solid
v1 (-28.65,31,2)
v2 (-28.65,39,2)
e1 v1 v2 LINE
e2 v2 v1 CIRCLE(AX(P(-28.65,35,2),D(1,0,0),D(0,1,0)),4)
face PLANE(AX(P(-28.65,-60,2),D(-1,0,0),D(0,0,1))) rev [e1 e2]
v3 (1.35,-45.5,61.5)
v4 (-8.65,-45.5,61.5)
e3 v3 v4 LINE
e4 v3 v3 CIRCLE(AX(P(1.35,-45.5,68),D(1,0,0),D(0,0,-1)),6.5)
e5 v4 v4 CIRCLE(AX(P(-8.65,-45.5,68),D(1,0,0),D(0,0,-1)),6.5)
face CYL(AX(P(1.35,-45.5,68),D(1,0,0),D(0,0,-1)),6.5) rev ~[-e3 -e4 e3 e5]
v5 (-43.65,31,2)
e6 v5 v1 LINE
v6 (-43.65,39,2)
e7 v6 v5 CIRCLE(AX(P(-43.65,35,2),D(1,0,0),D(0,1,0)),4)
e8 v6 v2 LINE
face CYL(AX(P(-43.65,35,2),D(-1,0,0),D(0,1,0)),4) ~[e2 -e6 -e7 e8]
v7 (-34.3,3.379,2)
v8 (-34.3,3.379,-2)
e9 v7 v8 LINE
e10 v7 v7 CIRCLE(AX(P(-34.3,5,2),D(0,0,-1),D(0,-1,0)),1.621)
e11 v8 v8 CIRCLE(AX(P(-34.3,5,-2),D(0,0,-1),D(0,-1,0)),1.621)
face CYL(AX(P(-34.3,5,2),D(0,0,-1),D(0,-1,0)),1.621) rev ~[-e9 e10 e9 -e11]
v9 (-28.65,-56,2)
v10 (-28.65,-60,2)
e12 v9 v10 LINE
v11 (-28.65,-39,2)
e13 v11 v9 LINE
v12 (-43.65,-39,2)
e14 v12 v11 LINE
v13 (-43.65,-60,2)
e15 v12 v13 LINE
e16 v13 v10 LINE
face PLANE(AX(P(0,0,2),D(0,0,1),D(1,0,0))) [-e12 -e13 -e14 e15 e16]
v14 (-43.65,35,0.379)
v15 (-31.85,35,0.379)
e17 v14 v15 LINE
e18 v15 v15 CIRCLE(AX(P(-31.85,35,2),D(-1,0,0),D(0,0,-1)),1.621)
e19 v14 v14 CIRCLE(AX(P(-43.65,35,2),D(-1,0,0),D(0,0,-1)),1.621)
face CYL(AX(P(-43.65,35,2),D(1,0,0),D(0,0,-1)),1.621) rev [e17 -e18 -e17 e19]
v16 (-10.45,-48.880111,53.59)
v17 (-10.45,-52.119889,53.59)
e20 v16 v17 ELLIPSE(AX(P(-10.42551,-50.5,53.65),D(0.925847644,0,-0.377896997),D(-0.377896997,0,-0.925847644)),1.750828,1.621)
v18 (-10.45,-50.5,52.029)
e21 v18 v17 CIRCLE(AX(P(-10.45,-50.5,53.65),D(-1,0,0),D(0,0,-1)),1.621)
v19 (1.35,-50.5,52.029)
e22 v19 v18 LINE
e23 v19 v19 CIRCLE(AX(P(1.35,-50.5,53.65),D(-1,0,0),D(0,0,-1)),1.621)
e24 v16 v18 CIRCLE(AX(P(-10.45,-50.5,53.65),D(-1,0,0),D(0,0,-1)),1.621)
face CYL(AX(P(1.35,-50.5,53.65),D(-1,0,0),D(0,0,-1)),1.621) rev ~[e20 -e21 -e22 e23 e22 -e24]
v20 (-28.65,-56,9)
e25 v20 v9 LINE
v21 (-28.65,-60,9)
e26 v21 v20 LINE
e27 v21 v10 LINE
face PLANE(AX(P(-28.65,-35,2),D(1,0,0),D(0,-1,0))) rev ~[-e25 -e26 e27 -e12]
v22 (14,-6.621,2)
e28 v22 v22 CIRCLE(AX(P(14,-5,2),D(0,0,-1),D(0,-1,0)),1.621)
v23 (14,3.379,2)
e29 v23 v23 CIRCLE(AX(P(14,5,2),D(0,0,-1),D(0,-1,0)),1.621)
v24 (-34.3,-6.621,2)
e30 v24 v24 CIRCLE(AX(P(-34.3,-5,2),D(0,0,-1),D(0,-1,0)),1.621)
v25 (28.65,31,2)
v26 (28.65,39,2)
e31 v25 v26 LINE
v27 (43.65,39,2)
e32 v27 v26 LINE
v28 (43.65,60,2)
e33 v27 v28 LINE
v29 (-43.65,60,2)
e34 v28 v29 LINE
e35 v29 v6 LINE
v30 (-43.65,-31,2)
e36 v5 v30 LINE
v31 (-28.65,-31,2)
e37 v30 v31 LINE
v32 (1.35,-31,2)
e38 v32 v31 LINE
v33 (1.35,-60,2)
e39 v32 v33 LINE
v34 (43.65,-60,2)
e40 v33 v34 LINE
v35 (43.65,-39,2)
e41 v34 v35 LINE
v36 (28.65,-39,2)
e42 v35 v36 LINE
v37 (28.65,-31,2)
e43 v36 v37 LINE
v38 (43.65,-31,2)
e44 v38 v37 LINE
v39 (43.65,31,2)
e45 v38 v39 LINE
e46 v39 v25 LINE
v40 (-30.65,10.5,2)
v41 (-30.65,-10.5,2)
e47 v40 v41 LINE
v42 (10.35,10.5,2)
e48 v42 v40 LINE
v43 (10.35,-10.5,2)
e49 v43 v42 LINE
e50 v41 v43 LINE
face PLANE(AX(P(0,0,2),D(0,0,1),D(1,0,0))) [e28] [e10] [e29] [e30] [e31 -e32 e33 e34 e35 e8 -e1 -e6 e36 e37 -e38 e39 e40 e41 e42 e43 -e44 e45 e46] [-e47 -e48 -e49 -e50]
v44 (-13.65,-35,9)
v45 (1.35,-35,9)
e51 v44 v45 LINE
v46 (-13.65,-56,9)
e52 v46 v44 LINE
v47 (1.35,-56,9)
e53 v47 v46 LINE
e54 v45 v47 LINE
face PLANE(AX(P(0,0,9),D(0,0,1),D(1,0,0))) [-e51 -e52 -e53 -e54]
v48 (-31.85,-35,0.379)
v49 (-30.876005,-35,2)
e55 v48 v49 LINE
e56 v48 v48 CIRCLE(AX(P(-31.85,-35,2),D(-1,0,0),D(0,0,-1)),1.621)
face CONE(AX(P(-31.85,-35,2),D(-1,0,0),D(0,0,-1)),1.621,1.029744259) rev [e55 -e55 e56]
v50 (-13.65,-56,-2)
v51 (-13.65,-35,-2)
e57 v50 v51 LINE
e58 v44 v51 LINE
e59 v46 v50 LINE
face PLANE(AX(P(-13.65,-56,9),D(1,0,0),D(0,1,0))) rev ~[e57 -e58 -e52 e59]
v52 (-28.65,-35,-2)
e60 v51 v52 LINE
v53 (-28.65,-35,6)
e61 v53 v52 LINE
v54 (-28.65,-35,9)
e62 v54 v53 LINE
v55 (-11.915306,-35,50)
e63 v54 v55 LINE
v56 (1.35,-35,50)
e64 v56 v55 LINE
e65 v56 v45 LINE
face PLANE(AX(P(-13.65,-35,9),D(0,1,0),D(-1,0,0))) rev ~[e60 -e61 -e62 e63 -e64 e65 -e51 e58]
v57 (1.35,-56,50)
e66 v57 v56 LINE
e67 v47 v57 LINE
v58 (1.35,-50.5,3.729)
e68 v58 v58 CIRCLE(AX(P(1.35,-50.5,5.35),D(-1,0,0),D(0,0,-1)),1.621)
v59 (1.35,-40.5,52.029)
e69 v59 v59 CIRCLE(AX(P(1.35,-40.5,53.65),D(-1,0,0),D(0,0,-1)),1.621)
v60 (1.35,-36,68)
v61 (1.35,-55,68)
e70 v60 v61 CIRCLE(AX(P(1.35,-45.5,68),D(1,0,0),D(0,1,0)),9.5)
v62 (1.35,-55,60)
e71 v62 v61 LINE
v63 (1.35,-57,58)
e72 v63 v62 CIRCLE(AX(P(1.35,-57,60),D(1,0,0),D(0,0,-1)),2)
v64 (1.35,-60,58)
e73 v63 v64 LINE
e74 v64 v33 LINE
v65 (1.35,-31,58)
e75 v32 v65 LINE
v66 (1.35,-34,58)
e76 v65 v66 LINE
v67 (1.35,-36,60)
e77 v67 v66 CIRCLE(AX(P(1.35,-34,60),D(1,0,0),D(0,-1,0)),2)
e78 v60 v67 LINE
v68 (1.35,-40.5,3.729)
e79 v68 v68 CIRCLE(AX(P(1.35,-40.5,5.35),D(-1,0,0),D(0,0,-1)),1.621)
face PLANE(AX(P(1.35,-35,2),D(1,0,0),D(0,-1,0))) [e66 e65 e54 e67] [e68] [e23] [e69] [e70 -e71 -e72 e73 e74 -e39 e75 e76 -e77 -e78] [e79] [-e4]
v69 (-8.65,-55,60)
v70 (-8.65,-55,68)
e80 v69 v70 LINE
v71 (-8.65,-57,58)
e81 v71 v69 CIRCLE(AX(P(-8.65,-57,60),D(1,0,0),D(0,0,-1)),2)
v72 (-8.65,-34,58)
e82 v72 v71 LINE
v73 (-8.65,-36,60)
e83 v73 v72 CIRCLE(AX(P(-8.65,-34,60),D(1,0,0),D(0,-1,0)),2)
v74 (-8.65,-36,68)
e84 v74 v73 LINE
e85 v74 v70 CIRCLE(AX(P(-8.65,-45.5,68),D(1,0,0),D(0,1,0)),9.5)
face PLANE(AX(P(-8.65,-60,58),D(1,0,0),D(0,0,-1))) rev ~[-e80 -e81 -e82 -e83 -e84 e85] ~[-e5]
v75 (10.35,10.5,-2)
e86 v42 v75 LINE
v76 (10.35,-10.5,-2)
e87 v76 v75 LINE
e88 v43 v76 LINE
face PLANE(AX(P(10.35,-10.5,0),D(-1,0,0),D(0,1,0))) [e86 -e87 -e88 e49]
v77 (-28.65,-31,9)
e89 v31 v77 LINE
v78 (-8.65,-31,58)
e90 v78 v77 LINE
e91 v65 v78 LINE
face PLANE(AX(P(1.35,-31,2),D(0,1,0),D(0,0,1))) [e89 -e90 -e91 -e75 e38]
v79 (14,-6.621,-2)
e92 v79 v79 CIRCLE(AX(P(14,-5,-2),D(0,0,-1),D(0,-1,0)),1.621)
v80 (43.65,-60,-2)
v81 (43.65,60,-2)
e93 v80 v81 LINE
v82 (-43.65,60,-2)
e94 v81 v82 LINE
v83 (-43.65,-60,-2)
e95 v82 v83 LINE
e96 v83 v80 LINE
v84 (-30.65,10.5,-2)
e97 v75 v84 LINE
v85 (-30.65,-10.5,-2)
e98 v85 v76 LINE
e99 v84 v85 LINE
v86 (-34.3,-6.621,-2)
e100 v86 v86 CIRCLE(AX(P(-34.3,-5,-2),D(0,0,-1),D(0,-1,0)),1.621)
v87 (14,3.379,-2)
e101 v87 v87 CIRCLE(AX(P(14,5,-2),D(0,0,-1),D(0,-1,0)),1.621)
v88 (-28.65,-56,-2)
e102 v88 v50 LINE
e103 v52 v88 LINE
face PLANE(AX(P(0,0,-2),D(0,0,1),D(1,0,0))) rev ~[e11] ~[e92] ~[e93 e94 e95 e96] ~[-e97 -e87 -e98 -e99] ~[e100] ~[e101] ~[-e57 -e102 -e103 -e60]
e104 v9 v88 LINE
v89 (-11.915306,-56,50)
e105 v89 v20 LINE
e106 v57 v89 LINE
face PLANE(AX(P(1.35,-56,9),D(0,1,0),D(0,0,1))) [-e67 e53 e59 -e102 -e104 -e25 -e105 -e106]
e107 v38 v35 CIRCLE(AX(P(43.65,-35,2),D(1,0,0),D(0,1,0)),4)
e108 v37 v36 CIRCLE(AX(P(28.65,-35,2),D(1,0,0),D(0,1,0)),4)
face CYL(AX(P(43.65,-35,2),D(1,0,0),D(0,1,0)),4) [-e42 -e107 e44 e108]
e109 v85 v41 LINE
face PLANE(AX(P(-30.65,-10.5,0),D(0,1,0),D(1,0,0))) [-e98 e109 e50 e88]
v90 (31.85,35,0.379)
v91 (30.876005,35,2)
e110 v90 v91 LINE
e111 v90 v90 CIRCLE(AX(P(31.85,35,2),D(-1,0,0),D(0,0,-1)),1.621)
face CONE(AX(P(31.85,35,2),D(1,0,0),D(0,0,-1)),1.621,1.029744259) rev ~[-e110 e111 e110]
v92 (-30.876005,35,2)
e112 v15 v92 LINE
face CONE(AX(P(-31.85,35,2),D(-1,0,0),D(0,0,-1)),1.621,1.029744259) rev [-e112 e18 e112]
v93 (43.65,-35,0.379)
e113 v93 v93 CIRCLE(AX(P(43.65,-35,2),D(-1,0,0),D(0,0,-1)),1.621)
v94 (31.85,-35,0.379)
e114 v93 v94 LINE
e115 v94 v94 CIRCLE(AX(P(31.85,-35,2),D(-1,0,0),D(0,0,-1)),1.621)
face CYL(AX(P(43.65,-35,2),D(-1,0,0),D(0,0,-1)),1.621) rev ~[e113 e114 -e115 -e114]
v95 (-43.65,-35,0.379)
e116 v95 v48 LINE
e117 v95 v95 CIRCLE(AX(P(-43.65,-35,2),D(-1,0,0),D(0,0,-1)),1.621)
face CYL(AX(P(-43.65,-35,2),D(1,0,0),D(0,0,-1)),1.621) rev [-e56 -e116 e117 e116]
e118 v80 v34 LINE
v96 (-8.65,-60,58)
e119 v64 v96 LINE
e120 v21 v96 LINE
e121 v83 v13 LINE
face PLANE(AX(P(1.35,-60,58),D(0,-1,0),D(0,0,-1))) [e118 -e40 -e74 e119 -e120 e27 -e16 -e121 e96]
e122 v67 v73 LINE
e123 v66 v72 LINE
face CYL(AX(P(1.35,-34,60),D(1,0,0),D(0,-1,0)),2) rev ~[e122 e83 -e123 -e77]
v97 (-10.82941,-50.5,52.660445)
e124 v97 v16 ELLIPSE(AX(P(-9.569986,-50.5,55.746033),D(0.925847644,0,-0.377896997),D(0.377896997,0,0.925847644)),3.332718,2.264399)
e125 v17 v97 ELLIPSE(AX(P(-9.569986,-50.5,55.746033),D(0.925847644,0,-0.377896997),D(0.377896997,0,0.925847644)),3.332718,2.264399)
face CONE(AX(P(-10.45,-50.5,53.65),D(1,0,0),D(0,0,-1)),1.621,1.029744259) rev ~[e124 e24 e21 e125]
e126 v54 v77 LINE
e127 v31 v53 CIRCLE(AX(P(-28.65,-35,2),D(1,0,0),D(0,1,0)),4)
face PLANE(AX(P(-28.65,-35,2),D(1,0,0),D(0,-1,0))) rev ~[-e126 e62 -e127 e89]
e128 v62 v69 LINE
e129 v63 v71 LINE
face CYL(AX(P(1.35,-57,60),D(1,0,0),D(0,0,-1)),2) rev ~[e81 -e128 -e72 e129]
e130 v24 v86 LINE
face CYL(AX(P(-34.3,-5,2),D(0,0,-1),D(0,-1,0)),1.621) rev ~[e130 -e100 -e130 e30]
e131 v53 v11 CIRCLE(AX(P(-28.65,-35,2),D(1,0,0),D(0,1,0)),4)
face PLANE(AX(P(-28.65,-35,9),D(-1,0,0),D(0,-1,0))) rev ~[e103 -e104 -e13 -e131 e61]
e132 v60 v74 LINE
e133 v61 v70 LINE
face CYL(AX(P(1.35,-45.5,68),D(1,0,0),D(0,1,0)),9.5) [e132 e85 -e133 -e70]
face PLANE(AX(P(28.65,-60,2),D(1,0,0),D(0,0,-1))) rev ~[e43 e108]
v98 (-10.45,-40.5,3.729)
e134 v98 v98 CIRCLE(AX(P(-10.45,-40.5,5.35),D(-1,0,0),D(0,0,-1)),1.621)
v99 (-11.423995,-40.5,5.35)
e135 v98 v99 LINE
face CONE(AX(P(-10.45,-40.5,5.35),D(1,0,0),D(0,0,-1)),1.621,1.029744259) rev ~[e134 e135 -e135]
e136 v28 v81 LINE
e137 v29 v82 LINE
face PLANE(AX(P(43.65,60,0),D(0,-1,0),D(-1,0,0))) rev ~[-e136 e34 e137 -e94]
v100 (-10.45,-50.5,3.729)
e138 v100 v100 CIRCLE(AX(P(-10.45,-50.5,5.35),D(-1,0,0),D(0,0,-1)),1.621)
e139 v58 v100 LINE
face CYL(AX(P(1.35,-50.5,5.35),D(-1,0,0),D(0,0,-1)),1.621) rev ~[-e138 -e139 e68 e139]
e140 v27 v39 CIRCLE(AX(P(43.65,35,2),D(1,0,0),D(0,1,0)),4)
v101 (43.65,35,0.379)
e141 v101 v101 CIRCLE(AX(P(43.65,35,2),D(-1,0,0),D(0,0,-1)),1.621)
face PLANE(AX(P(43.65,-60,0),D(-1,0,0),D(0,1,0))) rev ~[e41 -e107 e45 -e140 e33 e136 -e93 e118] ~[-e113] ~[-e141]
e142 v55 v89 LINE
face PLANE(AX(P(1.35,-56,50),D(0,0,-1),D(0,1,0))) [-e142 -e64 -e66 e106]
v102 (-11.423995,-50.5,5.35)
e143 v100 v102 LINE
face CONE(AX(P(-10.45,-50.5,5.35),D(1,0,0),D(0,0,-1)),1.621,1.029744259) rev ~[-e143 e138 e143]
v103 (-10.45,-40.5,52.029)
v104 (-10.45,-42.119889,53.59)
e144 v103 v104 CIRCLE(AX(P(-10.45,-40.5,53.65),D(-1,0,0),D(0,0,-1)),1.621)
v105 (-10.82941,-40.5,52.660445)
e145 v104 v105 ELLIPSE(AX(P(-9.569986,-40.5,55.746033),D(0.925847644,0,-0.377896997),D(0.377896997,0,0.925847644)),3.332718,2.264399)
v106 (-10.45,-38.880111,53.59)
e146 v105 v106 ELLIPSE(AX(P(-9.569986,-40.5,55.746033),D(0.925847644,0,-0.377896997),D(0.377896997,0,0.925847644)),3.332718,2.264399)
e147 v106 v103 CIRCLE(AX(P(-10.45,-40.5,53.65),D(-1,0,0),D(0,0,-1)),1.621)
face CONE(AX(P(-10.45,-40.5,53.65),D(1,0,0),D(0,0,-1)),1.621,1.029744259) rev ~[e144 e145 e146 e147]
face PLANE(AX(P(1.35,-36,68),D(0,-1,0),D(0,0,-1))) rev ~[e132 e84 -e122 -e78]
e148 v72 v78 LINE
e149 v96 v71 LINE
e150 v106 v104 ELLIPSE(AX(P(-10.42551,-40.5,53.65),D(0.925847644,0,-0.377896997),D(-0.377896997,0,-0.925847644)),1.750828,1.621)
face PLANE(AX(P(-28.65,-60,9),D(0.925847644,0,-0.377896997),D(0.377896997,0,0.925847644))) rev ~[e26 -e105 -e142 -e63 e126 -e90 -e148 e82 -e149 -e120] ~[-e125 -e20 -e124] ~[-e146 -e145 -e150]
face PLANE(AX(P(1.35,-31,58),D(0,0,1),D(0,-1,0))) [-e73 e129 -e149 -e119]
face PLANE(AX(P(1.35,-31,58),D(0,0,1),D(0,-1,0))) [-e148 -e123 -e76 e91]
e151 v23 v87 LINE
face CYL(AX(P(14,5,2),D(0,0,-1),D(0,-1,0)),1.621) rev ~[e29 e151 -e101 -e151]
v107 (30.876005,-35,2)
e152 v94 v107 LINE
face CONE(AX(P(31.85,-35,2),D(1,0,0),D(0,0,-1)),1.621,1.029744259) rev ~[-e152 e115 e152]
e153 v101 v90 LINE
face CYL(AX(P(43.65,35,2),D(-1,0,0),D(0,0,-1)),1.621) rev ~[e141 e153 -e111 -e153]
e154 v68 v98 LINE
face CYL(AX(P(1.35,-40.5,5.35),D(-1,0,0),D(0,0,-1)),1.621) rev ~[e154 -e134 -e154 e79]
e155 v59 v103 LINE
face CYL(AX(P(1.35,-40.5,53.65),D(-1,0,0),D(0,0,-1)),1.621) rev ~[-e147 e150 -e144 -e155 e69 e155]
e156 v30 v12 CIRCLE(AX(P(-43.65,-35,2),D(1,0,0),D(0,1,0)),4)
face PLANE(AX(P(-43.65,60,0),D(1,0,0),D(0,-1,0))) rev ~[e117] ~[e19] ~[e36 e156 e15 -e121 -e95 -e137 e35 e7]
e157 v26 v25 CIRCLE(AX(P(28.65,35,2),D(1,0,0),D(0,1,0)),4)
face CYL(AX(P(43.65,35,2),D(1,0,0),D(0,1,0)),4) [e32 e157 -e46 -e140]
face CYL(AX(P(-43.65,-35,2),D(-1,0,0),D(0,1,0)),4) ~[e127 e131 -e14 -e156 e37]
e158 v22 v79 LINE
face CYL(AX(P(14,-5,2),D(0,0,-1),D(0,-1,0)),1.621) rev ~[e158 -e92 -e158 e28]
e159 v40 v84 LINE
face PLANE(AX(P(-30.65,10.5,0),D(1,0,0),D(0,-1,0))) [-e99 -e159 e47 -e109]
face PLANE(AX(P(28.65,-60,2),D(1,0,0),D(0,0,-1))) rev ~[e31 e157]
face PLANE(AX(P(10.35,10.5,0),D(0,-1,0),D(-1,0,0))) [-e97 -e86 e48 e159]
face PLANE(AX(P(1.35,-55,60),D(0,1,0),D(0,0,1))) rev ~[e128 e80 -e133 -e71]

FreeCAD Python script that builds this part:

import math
import FreeCAD as App
import Part
import Sketcher

doc = App.newDocument("Part")
params = doc.addObject("Spreadsheet::Sheet", "Params")
for row, (alias, value) in enumerate([
    ("sketch1_width", "41 mm"),
    ("sketch1_height", "120 mm"),
    ("sketch1_height2", "21 mm"),
    ("sketch1_width2", "87.3 mm"),
    ("pad1_length", "4 mm"),
    ("hole_diameter", "3.242 mm"),
    ("sketch3_radius", "4 mm"),
    ("pad2_length", "15 mm"),
    ("hole2_diameter", "3.242 mm"),
    ("hole2_depth", "11.8 mm"),
    ("sketch5_width", "30 mm"),
    ("sketch5_height", "21 mm"),
    ("pad3_length", "7 mm"),
    ("sketch6_height", "41 mm"),
    ("sketch6_width", "29 mm"),
    ("sketch6_width2", "21 mm"),
    ("sketch6_height2", "56 mm"),
    ("pad4_length", "30 mm"),
    ("hole3_diameter", "3.242 mm"),
    ("hole3_depth", "11.8 mm"),
    ("sketch8_width", "20 mm"),
    ("sketch8_height", "49 mm"),
    ("sketch9_diameter", "13 mm"),
    ("sketch9_radius", "2 mm"),
    ("sketch9_radius2", "9.5 mm"),
    ("pad5_length", "10 mm"),
    ("sketch10_width", "15 mm"),
    ("sketch10_height", "21 mm"),
], start=1):
    params.set(f"A{row}", alias)
    params.set(f"B{row}", "=" + value)
    params.setAlias(f"B{row}", alias)

body = doc.addObject("PartDesign::Body", "Body")

# Sketch on XY plane
sketch1 = doc.addObject("Sketcher::SketchObject", "Sketch")
body.addObject(sketch1)
sketch1.AttachmentSupport = (doc.XY_Plane, [""])
sketch1.MapMode = "FlatFace"
sketch1.addGeometry(Part.LineSegment(App.Vector(-43.65, 60, 0), App.Vector(-43.65, -60, 0)), False)
sketch1.addGeometry(Part.LineSegment(App.Vector(-43.65, -60, 0), App.Vector(43.65, -60, 0)), False)
sketch1.addGeometry(Part.LineSegment(App.Vector(43.65, -60, 0), App.Vector(43.65, 60, 0)), False)
sketch1.addGeometry(Part.LineSegment(App.Vector(43.65, 60, 0), App.Vector(-43.65, 60, 0)), False)
sketch1.addGeometry(Part.LineSegment(App.Vector(10.35, -10.5, 0), App.Vector(-30.65, -10.5, 0)), False)
sketch1.addGeometry(Part.LineSegment(App.Vector(-30.65, -10.5, 0), App.Vector(-30.65, 10.5, 0)), False)
sketch1.addGeometry(Part.LineSegment(App.Vector(-30.65, 10.5, 0), App.Vector(10.35, 10.5, 0)), False)
sketch1.addGeometry(Part.LineSegment(App.Vector(10.35, 10.5, 0), App.Vector(10.35, -10.5, 0)), False)
sketch1.addConstraint(Sketcher.Constraint("Coincident", 0, 2, 1, 1))
sketch1.addConstraint(Sketcher.Constraint("Coincident", 1, 2, 2, 1))
sketch1.addConstraint(Sketcher.Constraint("Coincident", 2, 2, 3, 1))
sketch1.addConstraint(Sketcher.Constraint("Coincident", 3, 2, 0, 1))
sketch1.addConstraint(Sketcher.Constraint("Coincident", 4, 2, 5, 1))
sketch1.addConstraint(Sketcher.Constraint("Coincident", 5, 2, 6, 1))
sketch1.addConstraint(Sketcher.Constraint("Coincident", 6, 2, 7, 1))
sketch1.addConstraint(Sketcher.Constraint("Coincident", 7, 2, 4, 1))
sketch1.addConstraint(Sketcher.Constraint("Vertical", 0))
sketch1.addConstraint(Sketcher.Constraint("Horizontal", 1))
sketch1.addConstraint(Sketcher.Constraint("Vertical", 2))
sketch1.addConstraint(Sketcher.Constraint("Horizontal", 3))
sketch1.addConstraint(Sketcher.Constraint("Horizontal", 4))
sketch1.addConstraint(Sketcher.Constraint("Vertical", 5))
sketch1.addConstraint(Sketcher.Constraint("Horizontal", 6))
sketch1.addConstraint(Sketcher.Constraint("Vertical", 7))
sketch1.addConstraint(Sketcher.Constraint("Symmetric", 0, 2, 2, 2, -1, 1))
sketch1.addConstraint(Sketcher.Constraint("DistanceX", 4, 2, 4, 1, 41.0))
sketch1.addConstraint(Sketcher.Constraint("DistanceY", 0, 2, 0, 1, 120.0))
sketch1.addConstraint(Sketcher.Constraint("DistanceY", 5, 1, 5, 2, 21.0))
sketch1.addConstraint(Sketcher.Constraint("DistanceX", 1, 1, 1, 2, 87.3))
sketch1.addConstraint(Sketcher.Constraint("DistanceX", 0, 2, 4, 2, 13.0))
sketch1.addConstraint(Sketcher.Constraint("DistanceY", 4, 2, -1, 1, 10.5))
sketch1.setExpression("Constraints[17]", "Params.sketch1_width")
sketch1.setExpression("Constraints[18]", "Params.sketch1_height")
sketch1.setExpression("Constraints[19]", "Params.sketch1_height2")
sketch1.setExpression("Constraints[20]", "Params.sketch1_width2")
pad1 = doc.addObject("PartDesign::Pad", "Pad")
body.addObject(pad1)
pad1.Profile = sketch1
pad1.setExpression("Length", "Params.pad1_length")
pad1.Midplane = True

# Sketch on XY plane
sketch2 = doc.addObject("Sketcher::SketchObject", "Sketch001")
body.addObject(sketch2)
sketch2.AttachmentSupport = (doc.XY_Plane, [""])
sketch2.MapMode = "FlatFace"
sketch2.AttachmentOffset = App.Placement(App.Vector(0, 0, 2), App.Rotation())
sketch2.addGeometry(Part.Circle(App.Vector(-34.3, 5, 0), App.Vector(0, 0, 1), 1.621), False)
sketch2.addGeometry(Part.Circle(App.Vector(-34.3, -5, 0), App.Vector(0, 0, 1), 1.621), False)
sketch2.addGeometry(Part.Circle(App.Vector(14, -5, 0), App.Vector(0, 0, 1), 1.621), False)
sketch2.addGeometry(Part.Circle(App.Vector(14, 5, 0), App.Vector(0, 0, 1), 1.621), False)
sketch2.addConstraint(Sketcher.Constraint("Equal", 0, 1))
sketch2.addConstraint(Sketcher.Constraint("Equal", 1, 2))
sketch2.addConstraint(Sketcher.Constraint("Equal", 2, 3))
sketch2.addConstraint(Sketcher.Constraint("Symmetric", 0, 3, 1, 3, -1))
sketch2.addConstraint(Sketcher.Constraint("Symmetric", 2, 3, 3, 3, -1))
sketch2.addConstraint(Sketcher.Constraint("Horizontal", 1, 3, 2, 3))
sketch2.addConstraint(Sketcher.Constraint("Diameter", 0, 3.242))
sketch2.addConstraint(Sketcher.Constraint("DistanceY", -1, 1, 0, 3, 5.0))
sketch2.addConstraint(Sketcher.Constraint("DistanceX", -1, 1, 2, 3, 14.0))
sketch2.addConstraint(Sketcher.Constraint("DistanceX", 0, 3, -1, 1, 34.3))
doc.recompute()
hole = doc.addObject("PartDesign::Hole", "Hole")
body.addObject(hole)
hole.Profile = sketch2
hole.ThreadType = "None"
hole.setExpression("Diameter", "Params.hole_diameter")
hole.DepthType = "ThroughAll"

# Sketch on YZ plane
sketch3 = doc.addObject("Sketcher::SketchObject", "Sketch002")
body.addObject(sketch3)
sketch3.AttachmentSupport = (doc.YZ_Plane, [""])
sketch3.MapMode = "FlatFace"
sketch3.AttachmentOffset = App.Placement(App.Vector(0, 0, 43.65), App.Rotation())
sketch3.addGeometry(Part.LineSegment(App.Vector(31, 2, 0), App.Vector(39, 2, 0)), False)
sketch3.addGeometry(Part.ArcOfCircle(Part.Circle(App.Vector(35, 2, 0), App.Vector(0, 0, 1), 4), math.radians(0), math.radians(180)), False)
sketch3.addGeometry(Part.ArcOfCircle(Part.Circle(App.Vector(-35, 2, 0), App.Vector(0, 0, 1), 4), math.radians(0), math.radians(180)), False)
sketch3.addGeometry(Part.LineSegment(App.Vector(-39, 2, 0), App.Vector(-31, 2, 0)), False)
sketch3.addConstraint(Sketcher.Constraint("Coincident", 0, 1, 1, 2))
sketch3.addConstraint(Sketcher.Constraint("Coincident", 1, 1, 0, 2))
sketch3.addConstraint(Sketcher.Constraint("Coincident", 2, 1, 3, 2))
sketch3.addConstraint(Sketcher.Constraint("Coincident", 3, 1, 2, 2))
sketch3.addConstraint(Sketcher.Constraint("Horizontal", 0))
sketch3.addConstraint(Sketcher.Constraint("Horizontal", 3))
sketch3.addConstraint(Sketcher.Constraint("Equal", 1, 2))
sketch3.addConstraint(Sketcher.Constraint("Symmetric", 1, 3, 2, 3, -2))
sketch3.addConstraint(Sketcher.Constraint("Horizontal", 2, 3, 0, 1))
sketch3.addConstraint(Sketcher.Constraint("Horizontal", 1, 1, 2, 1))
sketch3.addConstraint(Sketcher.Constraint("Radius", 1, 4.0))
sketch3.addConstraint(Sketcher.Constraint("DistanceX", 2, 3, 1, 3, 70.0))
sketch3.addConstraint(Sketcher.Constraint("DistanceY", -1, 1, 1, 3, 2.0))
sketch3.setExpression("Constraints[10]", "Params.sketch3_radius")
pad2 = doc.addObject("PartDesign::Pad", "Pad001")
body.addObject(pad2)
pad2.Profile = sketch3
pad2.setExpression("Length", "Params.pad2_length")
pad2.Reversed = True

# Sketch on YZ plane
sketch4 = doc.addObject("Sketcher::SketchObject", "Sketch003")
body.addObject(sketch4)
sketch4.AttachmentSupport = (doc.YZ_Plane, [""])
sketch4.MapMode = "FlatFace"
sketch4.AttachmentOffset = App.Placement(App.Vector(0, 0, 43.65), App.Rotation())
sketch4.addGeometry(Part.Circle(App.Vector(35, 2, 0), App.Vector(0, 0, 1), 1.621), False)
sketch4.addGeometry(Part.Circle(App.Vector(-35, 2, 0), App.Vector(0, 0, 1), 1.621), False)
sketch4.addConstraint(Sketcher.Constraint("Equal", 0, 1))
sketch4.addConstraint(Sketcher.Constraint("Symmetric", 0, 3, 1, 3, -2))
sketch4.addConstraint(Sketcher.Constraint("Diameter", 0, 3.242))
sketch4.addConstraint(Sketcher.Constraint("DistanceX", -1, 1, 0, 3, 35.0))
sketch4.addConstraint(Sketcher.Constraint("DistanceY", -1, 1, 0, 3, 2.0))
doc.recompute()
hole2 = doc.addObject("PartDesign::Hole", "Hole001")
body.addObject(hole2)
hole2.Profile = sketch4
hole2.ThreadType = "None"
hole2.setExpression("Diameter", "Params.hole2_diameter")
hole2.DepthType = "Dimension"
hole2.setExpression("Depth", "Params.hole2_depth")
hole2.DrillPoint = "Angled"
hole2.DrillPointAngle = 118
doc.recompute()

mirrored = doc.addObject("PartDesign::Mirrored", "Mirrored")
body.addObject(mirrored)
mirrored.Originals = [pad2, hole2]
mirrored.MirrorPlane = (doc.YZ_Plane, [""])
body.Tip = mirrored

# Sketch on XY plane
sketch5 = doc.addObject("Sketcher::SketchObject", "Sketch004")
body.addObject(sketch5)
sketch5.AttachmentSupport = (doc.XY_Plane, [""])
sketch5.MapMode = "FlatFace"
sketch5.AttachmentOffset = App.Placement(App.Vector(0, 0, 2), App.Rotation())
sketch5.addGeometry(Part.LineSegment(App.Vector(1.35, -35, 0), App.Vector(-28.65, -35, 0)), False)
sketch5.addGeometry(Part.LineSegment(App.Vector(-28.65, -35, 0), App.Vector(-28.65, -56, 0)), False)
sketch5.addGeometry(Part.LineSegment(App.Vector(-28.65, -56, 0), App.Vector(1.35, -56, 0)), False)
sketch5.addGeometry(Part.LineSegment(App.Vector(1.35, -56, 0), App.Vector(1.35, -35, 0)), False)
sketch5.addConstraint(Sketcher.Constraint("Coincident", 0, 2, 1, 1))
sketch5.addConstraint(Sketcher.Constraint("Coincident", 1, 2, 2, 1))
sketch5.addConstraint(Sketcher.Constraint("Coincident", 2, 2, 3, 1))
sketch5.addConstraint(Sketcher.Constraint("Coincident", 3, 2, 0, 1))
sketch5.addConstraint(Sketcher.Constraint("Horizontal", 0))
sketch5.addConstraint(Sketcher.Constraint("Vertical", 1))
sketch5.addConstraint(Sketcher.Constraint("Horizontal", 2))
sketch5.addConstraint(Sketcher.Constraint("Vertical", 3))
sketch5.addConstraint(Sketcher.Constraint("DistanceX", 0, 2, 0, 1, 30.0))
sketch5.addConstraint(Sketcher.Constraint("DistanceY", 1, 2, 1, 1, 21.0))
sketch5.addConstraint(Sketcher.Constraint("DistanceY", 0, 2, -1, 1, 35.0))
sketch5.addConstraint(Sketcher.Constraint("DistanceX", 0, 2, -1, 1, 28.65))
sketch5.setExpression("Constraints[8]", "Params.sketch5_width")
sketch5.setExpression("Constraints[9]", "Params.sketch5_height")
pad3 = doc.addObject("PartDesign::Pad", "Pad002")
body.addObject(pad3)
pad3.Profile = sketch5
pad3.setExpression("Length", "Params.pad3_length")

# Sketch on YZ plane
sketch6 = doc.addObject("Sketcher::SketchObject", "Sketch005")
body.addObject(sketch6)
sketch6.AttachmentSupport = (doc.YZ_Plane, [""])
sketch6.MapMode = "FlatFace"
sketch6.AttachmentOffset = App.Placement(App.Vector(0, 0, 1.35), App.Rotation())
sketch6.addGeometry(Part.LineSegment(App.Vector(-31, 2, 0), App.Vector(-31, 58, 0)), False)
sketch6.addGeometry(Part.LineSegment(App.Vector(-31, 58, 0), App.Vector(-60, 58, 0)), False)
sketch6.addGeometry(Part.LineSegment(App.Vector(-60, 58, 0), App.Vector(-60, 2, 0)), False)
sketch6.addGeometry(Part.LineSegment(App.Vector(-60, 2, 0), App.Vector(-31, 2, 0)), False)
sketch6.addGeometry(Part.LineSegment(App.Vector(-35, 9, 0), App.Vector(-56, 9, 0)), False)
sketch6.addGeometry(Part.LineSegment(App.Vector(-56, 9, 0), App.Vector(-56, 50, 0)), False)
sketch6.addGeometry(Part.LineSegment(App.Vector(-56, 50, 0), App.Vector(-35, 50, 0)), False)
sketch6.addGeometry(Part.LineSegment(App.Vector(-35, 50, 0), App.Vector(-35, 9, 0)), False)
sketch6.addConstraint(Sketcher.Constraint("Coincident", 0, 2, 1, 1))
sketch6.addConstraint(Sketcher.Constraint("Coincident", 1, 2, 2, 1))
sketch6.addConstraint(Sketcher.Constraint("Coincident", 2, 2, 3, 1))
sketch6.addConstraint(Sketcher.Constraint("Coincident", 3, 2, 0, 1))
sketch6.addConstraint(Sketcher.Constraint("Coincident", 4, 2, 5, 1))
sketch6.addConstraint(Sketcher.Constraint("Coincident", 5, 2, 6, 1))
sketch6.addConstraint(Sketcher.Constraint("Coincident", 6, 2, 7, 1))
sketch6.addConstraint(Sketcher.Constraint("Coincident", 7, 2, 4, 1))
sketch6.addConstraint(Sketcher.Constraint("Vertical", 0))
sketch6.addConstraint(Sketcher.Constraint("Horizontal", 1))
sketch6.addConstraint(Sketcher.Constraint("Vertical", 2))
sketch6.addConstraint(Sketcher.Constraint("Horizontal", 3))
sketch6.addConstraint(Sketcher.Constraint("Horizontal", 4))
sketch6.addConstraint(Sketcher.Constraint("Vertical", 5))
sketch6.addConstraint(Sketcher.Constraint("Horizontal", 6))
sketch6.addConstraint(Sketcher.Constraint("Vertical", 7))
sketch6.addConstraint(Sketcher.Constraint("DistanceY", 5, 1, 5, 2, 41.0))
sketch6.addConstraint(Sketcher.Constraint("DistanceY", 5, 2, 1, 2, 8.0))
sketch6.addConstraint(Sketcher.Constraint("DistanceX", 1, 2, 1, 1, 29.0))
sketch6.addConstraint(Sketcher.Constraint("DistanceX", 4, 2, 4, 1, 21.0))
sketch6.addConstraint(Sketcher.Constraint("DistanceY", 0, 1, 0, 2, 56.0))
sketch6.addConstraint(Sketcher.Constraint("DistanceX", 0, 2, -1, 1, 31.0))
sketch6.addConstraint(Sketcher.Constraint("DistanceY", -1, 1, 0, 2, 58.0))
sketch6.addConstraint(Sketcher.Constraint("DistanceX", 4, 2, -1, 1, 56.0))
sketch6.setExpression("Constraints[16]", "Params.sketch6_height")
sketch6.setExpression("Constraints[18]", "Params.sketch6_width")
sketch6.setExpression("Constraints[19]", "Params.sketch6_width2")
sketch6.setExpression("Constraints[20]", "Params.sketch6_height2")
pad4 = doc.addObject("PartDesign::Pad", "Pad003")
body.addObject(pad4)
pad4.Profile = sketch6
pad4.setExpression("Length", "Params.pad4_length")
pad4.Reversed = True

# Sketch on YZ plane
sketch7 = doc.addObject("Sketcher::SketchObject", "Sketch006")
body.addObject(sketch7)
sketch7.AttachmentSupport = (doc.YZ_Plane, [""])
sketch7.MapMode = "FlatFace"
sketch7.AttachmentOffset = App.Placement(App.Vector(0, 0, 1.35), App.Rotation())
sketch7.addGeometry(Part.Circle(App.Vector(-50.5, 53.65, 0), App.Vector(0, 0, 1), 1.621), False)
sketch7.addGeometry(Part.Circle(App.Vector(-40.5, 53.65, 0), App.Vector(0, 0, 1), 1.621), False)
sketch7.addGeometry(Part.Circle(App.Vector(-40.5, 5.35, 0), App.Vector(0, 0, 1), 1.621), False)
sketch7.addGeometry(Part.Circle(App.Vector(-50.5, 5.35, 0), App.Vector(0, 0, 1), 1.621), False)
sketch7.addConstraint(Sketcher.Constraint("Equal", 0, 1))
sketch7.addConstraint(Sketcher.Constraint("Equal", 1, 2))
sketch7.addConstraint(Sketcher.Constraint("Equal", 2, 3))
sketch7.addConstraint(Sketcher.Constraint("Horizontal", 0, 3, 1, 3))
sketch7.addConstraint(Sketcher.Constraint("Horizontal", 2, 3, 3, 3))
sketch7.addConstraint(Sketcher.Constraint("Vertical", 1, 3, 2, 3))
sketch7.addConstraint(Sketcher.Constraint("Vertical", 0, 3, 3, 3))
sketch7.addConstraint(Sketcher.Constraint("Diameter", 0, 3.242))
sketch7.addConstraint(Sketcher.Constraint("DistanceX", 0, 3, 1, 3, 10.0))
sketch7.addConstraint(Sketcher.Constraint("DistanceX", 0, 3, -1, 1, 50.5))
sketch7.addConstraint(Sketcher.Constraint("DistanceY", 2, 3, 1, 3, 48.3))
sketch7.addConstraint(Sketcher.Constraint("DistanceY", -1, 1, 0, 3, 53.65))
doc.recompute()
hole3 = doc.addObject("PartDesign::Hole", "Hole002")
body.addObject(hole3)
hole3.Profile = sketch7
hole3.ThreadType = "None"
hole3.setExpression("Diameter", "Params.hole3_diameter")
hole3.DepthType = "Dimension"
hole3.setExpression("Depth", "Params.hole3_depth")
hole3.DrillPoint = "Angled"
hole3.DrillPointAngle = 118

# Sketch on XZ plane
sketch8 = doc.addObject("Sketcher::SketchObject", "Sketch007")
body.addObject(sketch8)
sketch8.AttachmentSupport = (doc.XZ_Plane, [""])
sketch8.MapMode = "FlatFace"
sketch8.AttachmentOffset = App.Placement(App.Vector(0, 0, 60), App.Rotation())
sketch8.addGeometry(Part.LineSegment(App.Vector(-28.65, 58, 0), App.Vector(-28.65, 9, 0)), False)
sketch8.addGeometry(Part.LineSegment(App.Vector(-28.65, 9, 0), App.Vector(-8.65, 58, 0)), False)
sketch8.addGeometry(Part.LineSegment(App.Vector(-8.65, 58, 0), App.Vector(-28.65, 58, 0)), False)
sketch8.addConstraint(Sketcher.Constraint("Coincident", 0, 2, 1, 1))
sketch8.addConstraint(Sketcher.Constraint("Coincident", 1, 2, 2, 1))
sketch8.addConstraint(Sketcher.Constraint("Coincident", 2, 2, 0, 1))
sketch8.addConstraint(Sketcher.Constraint("Vertical", 0))
sketch8.addConstraint(Sketcher.Constraint("Horizontal", 2))
sketch8.addConstraint(Sketcher.Constraint("DistanceX", 2, 2, 2, 1, 20.0))
sketch8.addConstraint(Sketcher.Constraint("DistanceY", 0, 2, 0, 1, 49.0))
sketch8.addConstraint(Sketcher.Constraint("DistanceY", -1, 1, 0, 2, 9.0))
sketch8.addConstraint(Sketcher.Constraint("DistanceX", 0, 2, -1, 1, 28.65))
sketch8.setExpression("Constraints[5]", "Params.sketch8_width")
sketch8.setExpression("Constraints[6]", "Params.sketch8_height")
pocket1 = doc.addObject("PartDesign::Pocket", "Pocket")
body.addObject(pocket1)
pocket1.Profile = sketch8
pocket1.Type = "ThroughAll"

# Sketch on YZ plane
sketch9 = doc.addObject("Sketcher::SketchObject", "Sketch008")
body.addObject(sketch9)
sketch9.AttachmentSupport = (doc.YZ_Plane, [""])
sketch9.MapMode = "FlatFace"
sketch9.AttachmentOffset = App.Placement(App.Vector(0, 0, 1.35), App.Rotation())
sketch9.addGeometry(Part.LineSegment(App.Vector(-57, 58, 0), App.Vector(-34, 58, 0)), False)
sketch9.addGeometry(Part.ArcOfCircle(Part.Circle(App.Vector(-34, 60, 0), App.Vector(0, 0, 1), 2), math.radians(180), math.radians(270)), False)
sketch9.addGeometry(Part.LineSegment(App.Vector(-36, 60, 0), App.Vector(-36, 68, 0)), False)
sketch9.addGeometry(Part.ArcOfCircle(Part.Circle(App.Vector(-45.5, 68, 0), App.Vector(0, 0, 1), 9.5), math.radians(0), math.radians(180)), False)
sketch9.addGeometry(Part.LineSegment(App.Vector(-55, 68, 0), App.Vector(-55, 60, 0)), False)
sketch9.addGeometry(Part.ArcOfCircle(Part.Circle(App.Vector(-57, 60, 0), App.Vector(0, 0, 1), 2), math.radians(-90), math.radians(0)), False)
sketch9.addGeometry(Part.Circle(App.Vector(-45.5, 68, 0), App.Vector(0, 0, 1), 6.5), False)
sketch9.addConstraint(Sketcher.Constraint("Tangent", 0, 2, 1, 2))
sketch9.addConstraint(Sketcher.Constraint("Tangent", 1, 1, 2, 1))
sketch9.addConstraint(Sketcher.Constraint("Tangent", 2, 2, 3, 1))
sketch9.addConstraint(Sketcher.Constraint("Tangent", 3, 2, 4, 1))
sketch9.addConstraint(Sketcher.Constraint("Tangent", 4, 2, 5, 2))
sketch9.addConstraint(Sketcher.Constraint("Tangent", 5, 1, 0, 1))
sketch9.addConstraint(Sketcher.Constraint("Horizontal", 0))
sketch9.addConstraint(Sketcher.Constraint("Vertical", 2))
sketch9.addConstraint(Sketcher.Constraint("Vertical", 4))
sketch9.addConstraint(Sketcher.Constraint("Coincident", 6, 3, 3, 3))
sketch9.addConstraint(Sketcher.Constraint("Equal", 1, 5))
sketch9.addConstraint(Sketcher.Constraint("Diameter", 6, 13.0))
sketch9.addConstraint(Sketcher.Constraint("Radius", 1, 2.0))
sketch9.addConstraint(Sketcher.Constraint("DistanceY", 0, 2, 3, 3, 10.0))
sketch9.addConstraint(Sketcher.Constraint("Radius", 3, 9.5))
sketch9.addConstraint(Sketcher.Constraint("DistanceX", 1, 3, -1, 1, 34.0))
sketch9.addConstraint(Sketcher.Constraint("DistanceY", -1, 1, 1, 3, 60.0))
sketch9.setExpression("Constraints[11]", "Params.sketch9_diameter")
sketch9.setExpression("Constraints[12]", "Params.sketch9_radius")
sketch9.setExpression("Constraints[14]", "Params.sketch9_radius2")
pad5 = doc.addObject("PartDesign::Pad", "Pad004")
body.addObject(pad5)
pad5.Profile = sketch9
pad5.setExpression("Length", "Params.pad5_length")
pad5.Reversed = True

# Sketch on XY plane
sketch10 = doc.addObject("Sketcher::SketchObject", "Sketch009")
body.addObject(sketch10)
sketch10.AttachmentSupport = (doc.XY_Plane, [""])
sketch10.MapMode = "FlatFace"
sketch10.AttachmentOffset = App.Placement(App.Vector(0, 0, 9), App.Rotation())
sketch10.addGeometry(Part.LineSegment(App.Vector(-13.65, -56, 0), App.Vector(-13.65, -35, 0)), False)
sketch10.addGeometry(Part.LineSegment(App.Vector(-13.65, -35, 0), App.Vector(-28.65, -35, 0)), False)
sketch10.addGeometry(Part.LineSegment(App.Vector(-28.65, -35, 0), App.Vector(-28.65, -56, 0)), False)
sketch10.addGeometry(Part.LineSegment(App.Vector(-28.65, -56, 0), App.Vector(-13.65, -56, 0)), False)
sketch10.addConstraint(Sketcher.Constraint("Coincident", 0, 2, 1, 1))
sketch10.addConstraint(Sketcher.Constraint("Coincident", 1, 2, 2, 1))
sketch10.addConstraint(Sketcher.Constraint("Coincident", 2, 2, 3, 1))
sketch10.addConstraint(Sketcher.Constraint("Coincident", 3, 2, 0, 1))
sketch10.addConstraint(Sketcher.Constraint("Vertical", 0))
sketch10.addConstraint(Sketcher.Constraint("Horizontal", 1))
sketch10.addConstraint(Sketcher.Constraint("Vertical", 2))
sketch10.addConstraint(Sketcher.Constraint("Horizontal", 3))
sketch10.addConstraint(Sketcher.Constraint("DistanceX", 1, 2, 1, 1, 15.0))
sketch10.addConstraint(Sketcher.Constraint("DistanceY", 0, 1, 0, 2, 21.0))
sketch10.addConstraint(Sketcher.Constraint("DistanceY", 0, 2, -1, 1, 35.0))
sketch10.addConstraint(Sketcher.Constraint("DistanceX", 0, 2, -1, 1, 13.65))
sketch10.setExpression("Constraints[8]", "Params.sketch10_width")
sketch10.setExpression("Constraints[9]", "Params.sketch10_height")
pocket2 = doc.addObject("PartDesign::Pocket", "Pocket001")
body.addObject(pocket2)
pocket2.Profile = sketch10
pocket2.Type = "ThroughAll"

doc.recompute()
